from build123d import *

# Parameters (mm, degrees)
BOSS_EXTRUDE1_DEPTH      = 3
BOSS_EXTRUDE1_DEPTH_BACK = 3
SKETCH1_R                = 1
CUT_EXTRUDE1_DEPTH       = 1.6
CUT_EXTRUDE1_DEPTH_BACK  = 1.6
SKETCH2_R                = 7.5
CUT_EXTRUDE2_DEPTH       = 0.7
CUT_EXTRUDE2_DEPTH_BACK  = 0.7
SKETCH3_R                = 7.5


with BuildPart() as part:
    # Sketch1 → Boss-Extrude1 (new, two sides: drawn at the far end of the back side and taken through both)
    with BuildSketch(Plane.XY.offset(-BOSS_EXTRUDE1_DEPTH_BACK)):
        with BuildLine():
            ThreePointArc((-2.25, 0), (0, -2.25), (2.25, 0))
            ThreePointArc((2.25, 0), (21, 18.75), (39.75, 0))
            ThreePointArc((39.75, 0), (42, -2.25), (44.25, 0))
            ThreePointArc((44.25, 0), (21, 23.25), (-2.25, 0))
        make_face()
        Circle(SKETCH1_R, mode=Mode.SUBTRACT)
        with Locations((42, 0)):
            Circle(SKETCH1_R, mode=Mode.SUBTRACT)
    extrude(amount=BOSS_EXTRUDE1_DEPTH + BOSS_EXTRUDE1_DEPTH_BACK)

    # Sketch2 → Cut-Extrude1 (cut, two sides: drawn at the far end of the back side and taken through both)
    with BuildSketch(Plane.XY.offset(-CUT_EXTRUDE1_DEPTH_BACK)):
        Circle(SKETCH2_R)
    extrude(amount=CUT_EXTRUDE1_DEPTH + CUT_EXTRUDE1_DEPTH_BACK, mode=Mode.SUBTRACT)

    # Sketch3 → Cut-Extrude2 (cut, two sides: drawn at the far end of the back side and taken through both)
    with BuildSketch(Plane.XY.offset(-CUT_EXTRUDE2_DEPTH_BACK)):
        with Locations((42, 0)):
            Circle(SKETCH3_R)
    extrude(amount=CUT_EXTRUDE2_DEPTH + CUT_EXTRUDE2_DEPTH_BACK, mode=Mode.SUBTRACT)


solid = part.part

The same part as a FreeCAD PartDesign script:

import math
import FreeCAD as App
import Part
import Sketcher

V = App.Vector

doc = App.newDocument("Part")
body = doc.addObject("PartDesign::Body", "Body")

sketch1 = body.newObject("Sketcher::SketchObject", "Sketch")
sketch1.AttachmentSupport = (doc.getObject("XY_Plane"), [""])
sketch1.MapMode = "FlatFace"
sketch1.addGeometry([
    Part.ArcOfCircle(Part.Circle(V(0, 0, 0), V(0, 0, 1), 2.2), math.radians(180), math.radians(360)),
    Part.ArcOfCircle(Part.Circle(V(21, 0, 0), V(0, 0, 1), 18.8), math.radians(0), math.radians(180)),
    Part.ArcOfCircle(Part.Circle(V(42, 0, 0), V(0, 0, 1), 2.2), math.radians(180), math.radians(360)),
    Part.ArcOfCircle(Part.Circle(V(21, 0, 0), V(0, 0, 1), 23.2), math.radians(0), math.radians(180)),
    Part.Circle(V(0, 0, 0), V(0, 0, 1), 1),
    Part.Circle(V(42, 0, 0), V(0, 0, 1), 1),
], False)
sketch1.addConstraint([
    Sketcher.Constraint("Tangent", 0, 2, 1, 2),
    Sketcher.Constraint("Tangent", 1, 1, 2, 1),
    Sketcher.Constraint("Tangent", 2, 2, 3, 1),
    Sketcher.Constraint("Tangent", 3, 2, 0, 1),
    Sketcher.Constraint("Coincident", 0, 3, -1, 1),
    Sketcher.Constraint("Coincident", 4, 3, -1, 1),
    Sketcher.Constraint("Coincident", 3, 3, 1, 3),
    Sketcher.Constraint("Coincident", 5, 3, 2, 3),
    Sketcher.Constraint("Equal", 4, 5),
    Sketcher.Constraint("PointOnObject", 1, 3, -1),
    Sketcher.Constraint("PointOnObject", 2, 3, -1),
    Sketcher.Constraint("Diameter", 4, 2.0),
    Sketcher.Constraint("Radius", 0, 2.25),
    Sketcher.Constraint("Radius", 1, 18.75),
])
pad1 = body.newObject("PartDesign::Pad", "Pad")
pad1.Profile = sketch1
pad1.Type = "TwoLengths"
pad1.Length = 3
pad1.Length2 = 3

sketch2 = body.newObject("Sketcher::SketchObject", "Sketch001")
sketch2.AttachmentSupport = (doc.getObject("XY_Plane"), [""])
sketch2.MapMode = "FlatFace"
sketch2.addGeometry(Part.Circle(V(0, 0, 0), V(0, 0, 1), 8), False)
sketch2.addConstraint([
    Sketcher.Constraint("Coincident", 0, 3, -1, 1),
    Sketcher.Constraint("Diameter", 0, 15.0),
])
pocket1 = body.newObject("PartDesign::Pocket", "Pocket")
pocket1.Profile = sketch2
pocket1.Type = "TwoLengths"
pocket1.Length = 1.6
pocket1.Length2 = 1.6
pocket1.Reversed = True

sketch3 = body.newObject("Sketcher::SketchObject", "Sketch002")
sketch3.AttachmentSupport = (doc.getObject("XY_Plane"), [""])
sketch3.MapMode = "FlatFace"
sketch3.addGeometry(Part.Circle(V(42, 0, 0), V(0, 0, 1), 8), False)
sketch3.addConstraint([
    Sketcher.Constraint("PointOnObject", 0, 3, -1),
    Sketcher.Constraint("Diameter", 0, 15.0),
    Sketcher.Constraint("DistanceX", -1, 1, 0, 3, 42.0),
])
pocket2 = body.newObject("PartDesign::Pocket", "Pocket001")
pocket2.Profile = sketch3
pocket2.Type = "TwoLengths"
pocket2.Length = 0.7
pocket2.Length2 = 0.7
pocket2.Reversed = True

doc.recompute()
